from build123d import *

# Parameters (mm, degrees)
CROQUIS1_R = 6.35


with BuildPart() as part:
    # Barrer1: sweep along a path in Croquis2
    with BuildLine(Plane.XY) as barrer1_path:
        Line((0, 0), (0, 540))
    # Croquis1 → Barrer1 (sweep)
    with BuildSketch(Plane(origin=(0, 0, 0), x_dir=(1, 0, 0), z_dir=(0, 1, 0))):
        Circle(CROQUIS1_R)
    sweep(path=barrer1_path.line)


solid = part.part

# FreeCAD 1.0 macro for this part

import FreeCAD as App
import Part
import Sketcher

V = App.Vector

doc = App.newDocument("Part")
body = doc.addObject("PartDesign::Body", "Body")

sketch1 = doc.addObject("Sketcher::SketchObject", "Sketch")
body.addObject(sketch1)
sketch1.AttachmentSupport = (doc.XZ_Plane, [""])
sketch1.MapMode = "FlatFace"
sketch1.addGeometry(Part.Circle(V(0, 0, 0), V(0, 0, 1), 6), False)
sketch1.addConstraint(Sketcher.Constraint("Coincident", 0, 3, -1, 1))
sketch1.addConstraint(Sketcher.Constraint("Diameter", 0, 12.7))

sketch2 = doc.addObject("Sketcher::SketchObject", "Sketch001")
body.addObject(sketch2)
sketch2.AttachmentSupport = (doc.XY_Plane, [""])
sketch2.MapMode = "FlatFace"
sketch2.addGeometry(Part.LineSegment(V(0, 0, 0), V(0, 540, 0)), False)
sketch2.addConstraint(Sketcher.Constraint("Vertical", 0))
sketch2.addConstraint(Sketcher.Constraint("Coincident", 0, 1, -1, 1))
sketch2.addConstraint(Sketcher.Constraint("DistanceY", 0, 1, 0, 2, 540.0))
doc.recompute()

additivepipe = doc.addObject("PartDesign::AdditivePipe", "AdditivePipe")
body.addObject(additivepipe)
additivepipe.Profile = sketch1
additivepipe.Spine = (sketch2, ["Edge1"])

doc.recompute()
